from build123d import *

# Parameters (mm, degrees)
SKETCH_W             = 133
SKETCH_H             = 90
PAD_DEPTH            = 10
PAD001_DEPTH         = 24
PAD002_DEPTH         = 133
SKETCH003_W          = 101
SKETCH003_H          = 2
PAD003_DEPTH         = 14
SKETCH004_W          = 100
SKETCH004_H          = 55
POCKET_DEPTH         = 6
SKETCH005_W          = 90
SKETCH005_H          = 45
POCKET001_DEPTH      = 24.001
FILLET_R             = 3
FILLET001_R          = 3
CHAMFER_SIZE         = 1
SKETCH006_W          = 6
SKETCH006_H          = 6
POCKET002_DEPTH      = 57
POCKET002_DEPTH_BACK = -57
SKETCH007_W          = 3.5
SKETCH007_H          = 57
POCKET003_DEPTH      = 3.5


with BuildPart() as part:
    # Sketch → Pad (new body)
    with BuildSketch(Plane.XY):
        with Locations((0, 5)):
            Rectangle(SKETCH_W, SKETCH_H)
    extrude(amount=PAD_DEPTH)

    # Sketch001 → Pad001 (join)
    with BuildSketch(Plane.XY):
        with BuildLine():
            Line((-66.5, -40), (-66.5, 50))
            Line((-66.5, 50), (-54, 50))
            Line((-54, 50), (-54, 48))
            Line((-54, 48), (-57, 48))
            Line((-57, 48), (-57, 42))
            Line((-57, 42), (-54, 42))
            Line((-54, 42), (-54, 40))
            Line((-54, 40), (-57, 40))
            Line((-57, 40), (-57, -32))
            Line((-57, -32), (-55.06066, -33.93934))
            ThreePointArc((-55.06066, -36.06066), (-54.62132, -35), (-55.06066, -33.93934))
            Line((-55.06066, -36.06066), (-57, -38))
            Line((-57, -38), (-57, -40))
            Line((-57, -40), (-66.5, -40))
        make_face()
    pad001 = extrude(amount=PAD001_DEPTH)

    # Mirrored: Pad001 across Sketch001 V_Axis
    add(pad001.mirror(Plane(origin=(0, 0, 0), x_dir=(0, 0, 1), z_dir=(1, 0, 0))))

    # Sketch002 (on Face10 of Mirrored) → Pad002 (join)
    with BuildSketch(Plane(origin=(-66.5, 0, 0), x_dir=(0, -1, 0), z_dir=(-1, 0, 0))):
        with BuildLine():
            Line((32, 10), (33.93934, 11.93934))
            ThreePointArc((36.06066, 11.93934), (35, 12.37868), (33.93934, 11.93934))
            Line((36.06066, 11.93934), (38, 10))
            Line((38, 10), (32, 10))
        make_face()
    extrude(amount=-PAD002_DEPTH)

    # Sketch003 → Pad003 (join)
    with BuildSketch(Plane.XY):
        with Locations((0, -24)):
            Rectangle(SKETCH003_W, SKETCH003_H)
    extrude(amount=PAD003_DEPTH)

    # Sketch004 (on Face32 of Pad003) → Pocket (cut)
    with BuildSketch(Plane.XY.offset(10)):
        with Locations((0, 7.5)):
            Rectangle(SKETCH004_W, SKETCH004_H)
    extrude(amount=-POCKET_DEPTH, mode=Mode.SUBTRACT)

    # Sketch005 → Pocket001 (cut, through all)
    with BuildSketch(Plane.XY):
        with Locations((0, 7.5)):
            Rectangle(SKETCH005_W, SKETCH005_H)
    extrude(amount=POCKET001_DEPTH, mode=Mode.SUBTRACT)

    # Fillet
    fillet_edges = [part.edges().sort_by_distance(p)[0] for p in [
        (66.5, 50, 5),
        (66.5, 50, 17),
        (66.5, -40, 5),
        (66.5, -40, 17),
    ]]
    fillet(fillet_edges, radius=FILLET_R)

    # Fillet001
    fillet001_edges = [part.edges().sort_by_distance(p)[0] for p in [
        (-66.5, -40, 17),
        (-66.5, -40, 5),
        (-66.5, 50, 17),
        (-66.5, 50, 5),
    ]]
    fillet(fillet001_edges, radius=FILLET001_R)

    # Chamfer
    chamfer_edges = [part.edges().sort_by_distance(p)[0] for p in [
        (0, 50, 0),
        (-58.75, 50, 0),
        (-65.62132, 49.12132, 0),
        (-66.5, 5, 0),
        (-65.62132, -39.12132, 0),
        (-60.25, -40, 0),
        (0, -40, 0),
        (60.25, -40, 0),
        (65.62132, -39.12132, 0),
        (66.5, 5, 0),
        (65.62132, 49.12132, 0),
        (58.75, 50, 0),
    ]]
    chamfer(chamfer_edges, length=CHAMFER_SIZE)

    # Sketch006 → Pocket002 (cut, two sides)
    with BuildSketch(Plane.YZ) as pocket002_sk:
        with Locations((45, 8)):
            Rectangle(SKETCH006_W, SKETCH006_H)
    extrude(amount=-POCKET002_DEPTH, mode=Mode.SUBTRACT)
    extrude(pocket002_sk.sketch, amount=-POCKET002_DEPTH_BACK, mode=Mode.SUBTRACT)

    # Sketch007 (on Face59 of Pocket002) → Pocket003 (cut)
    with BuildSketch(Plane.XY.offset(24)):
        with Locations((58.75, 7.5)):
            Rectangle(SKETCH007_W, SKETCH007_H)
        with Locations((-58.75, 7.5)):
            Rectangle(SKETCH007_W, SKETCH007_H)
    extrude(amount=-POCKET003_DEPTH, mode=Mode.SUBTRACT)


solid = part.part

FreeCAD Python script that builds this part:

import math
import FreeCAD as App
import Part
import Sketcher

V = App.Vector
Q = App.Units.Quantity


def edges_at(feature, points):
    """Names of the edges that pass closest to the given points."""
    edges = feature.Shape.Edges
    near = lambda p: min(range(len(edges)), key=lambda i: edges[i].distToShape(Part.Vertex(*p))[0])
    return sorted({f"Edge{near(p) + 1}" for p in points})

doc = App.newDocument("Part")
params = doc.addObject("Spreadsheet::Sheet", "Params")
for row, (alias, value) in enumerate([
    ("sketch1_width", "133 mm"),
    ("sketch1_height", "90 mm"),
    ("pad1_length", "10 mm"),
    ("sketch2_radius", "1.499999 mm"),
    ("sketch2_width", "3 mm"),
    ("sketch2_height", "90 mm"),
    ("sketch2_height2", "2 mm"),
    ("sketch2_height3", "72 mm"),
    ("pad2_length", "24 mm"),
    ("sketch3_radius", "1.499999 mm"),
    ("sketch3_width", "6 mm"),
    ("pad3_length", "133 mm"),
    ("sketch4_width", "101 mm"),
    ("sketch4_height", "2 mm"),
    ("pad4_length", "14 mm"),
    ("sketch5_width", "100 mm"),
    ("sketch5_height", "55 mm"),
    ("pocket1_length", "6 mm"),
    ("sketch6_width", "90 mm"),
    ("sketch6_height", "45 mm"),
    ("fillet_radius", "3 mm"),
    ("fillet2_radius", "3 mm"),
    ("chamfer_size", "1 mm"),
    ("sketch7_width", "6 mm"),
    ("pocket3_length", "57 mm"),
    ("pocket3_length2", "57 mm"),
    ("sketch8_height", "57 mm"),
    ("sketch8_width", "3.5 mm"),
    ("pocket4_length", "3.5 mm"),
], start=1):
    params.set(f"A{row}", alias)
    params.set(f"B{row}", "=" + value)
    params.setAlias(f"B{row}", alias)

body = doc.addObject("PartDesign::Body", "Body")

sketch1 = body.newObject("Sketcher::SketchObject", "Sketch")
sketch1.AttachmentSupport = (doc.getObject("XY_Plane"), [""])
sketch1.MapMode = "FlatFace"
sketch1.addGeometry([
    Part.LineSegment(V(-66, 50, 0), V(-66, -40, 0)),
    Part.LineSegment(V(-66, -40, 0), V(66, -40, 0)),
    Part.LineSegment(V(66, -40, 0), V(66, 50, 0)),
    Part.LineSegment(V(66, 50, 0), V(-66, 50, 0)),
], False)
sketch1.addConstraint([
    Sketcher.Constraint("Coincident", 0, 2, 1, 1),
    Sketcher.Constraint("Coincident", 1, 2, 2, 1),
    Sketcher.Constraint("Coincident", 2, 2, 3, 1),
    Sketcher.Constraint("Coincident", 3, 2, 0, 1),
    Sketcher.Constraint("Vertical", 0),
    Sketcher.Constraint("Horizontal", 1),
    Sketcher.Constraint("Vertical", 2),
    Sketcher.Constraint("Horizontal", 3),
    Sketcher.Constraint("DistanceX", 1, 1, 1, 2, Q("133 mm")),
    Sketcher.Constraint("DistanceY", 0, 2, 0, 1, Q("90 mm")),
    Sketcher.Constraint("DistanceY", 0, 2, -1, 1, Q("40 mm")),
    Sketcher.Constraint("DistanceX", 0, 2, -1, 1, Q("66.5 mm")),
])
sketch1.setExpression("Constraints[8]", "Params.sketch1_width")
sketch1.setExpression("Constraints[9]", "Params.sketch1_height")
pad1 = body.newObject("PartDesign::Pad", "Pad")
pad1.Profile = sketch1
pad1.setExpression("Length", "Params.pad1_length")

sketch2 = body.newObject("Sketcher::SketchObject", "Sketch001")
sketch2.AttachmentSupport = (doc.getObject("XY_Plane"), [""])
sketch2.MapMode = "FlatFace"
sketch2.addGeometry([
    Part.LineSegment(V(-66.5, 50, 0), V(-66.5, -40, 0)),
    Part.LineSegment(V(-66.5, -40, 0), V(-57, -40, 0)),
    Part.LineSegment(V(-57, -40, 0), V(-57, -38, 0)),
    Part.LineSegment(V(-57, -38, 0), V(-55.1, -36.1, 0)),
    Part.ArcOfCircle(Part.Circle(V(-56.1, -35, 0), V(0, 0, 1), 1.5), math.radians(-45), math.radians(45)),
    Part.LineSegment(V(-55.1, -33.9, 0), V(-57, -32, 0)),
    Part.LineSegment(V(-57, -32, 0), V(-57, 40, 0)),
    Part.LineSegment(V(-57, 40, 0), V(-54, 40, 0)),
    Part.LineSegment(V(-54, 40, 0), V(-54, 42, 0)),
    Part.LineSegment(V(-54, 42, 0), V(-57, 42, 0)),
    Part.LineSegment(V(-57, 42, 0), V(-57, 48, 0)),
    Part.LineSegment(V(-57, 48, 0), V(-54, 48, 0)),
    Part.LineSegment(V(-54, 48, 0), V(-54, 50, 0)),
    Part.LineSegment(V(-54, 50, 0), V(-66.5, 50, 0)),
], False)
sketch2.addConstraint([
    Sketcher.Constraint("Coincident", 0, 2, 1, 1),
    Sketcher.Constraint("Coincident", 1, 2, 2, 1),
    Sketcher.Constraint("Coincident", 2, 2, 3, 1),
    Sketcher.Constraint("Tangent", 3, 2, 4, 1),
    Sketcher.Constraint("Tangent", 4, 2, 5, 1),
    Sketcher.Constraint("Coincident", 5, 2, 6, 1),
    Sketcher.Constraint("Coincident", 6, 2, 7, 1),
    Sketcher.Constraint("Coincident", 7, 2, 8, 1),
    Sketcher.Constraint("Coincident", 8, 2, 9, 1),
    Sketcher.Constraint("Coincident", 9, 2, 10, 1),
    Sketcher.Constraint("Coincident", 10, 2, 11, 1),
    Sketcher.Constraint("Coincident", 11, 2, 12, 1),
    Sketcher.Constraint("Coincident", 12, 2, 13, 1),
    Sketcher.Constraint("Coincident", 13, 2, 0, 1),
    Sketcher.Constraint("Vertical", 0),
    Sketcher.Constraint("Horizontal", 1),
    Sketcher.Constraint("Vertical", 2),
    Sketcher.Constraint("Vertical", 6),
    Sketcher.Constraint("Horizontal", 7),
    Sketcher.Constraint("Vertical", 8),
    Sketcher.Constraint("Horizontal", 9),
    Sketcher.Constraint("Vertical", 10),
    Sketcher.Constraint("Horizontal", 11),
    Sketcher.Constraint("Vertical", 12),
    Sketcher.Constraint("Horizontal", 13),
    Sketcher.Constraint("Symmetric", 1, 2, 6, 2, -1),
    Sketcher.Constraint("Perpendicular", 3, 5),
    Sketcher.Constraint("Vertical", 3, 2, 4, 2),
    Sketcher.Constraint("Vertical", 6, 2, 9, 2),
    Sketcher.Constraint("Vertical", 8, 2, 11, 2),
    Sketcher.Constraint("Equal", 2, 8),
    Sketcher.Constraint("Equal", 8, 12),
    Sketcher.Constraint("Radius", 4, Q("1.499999 mm")),
    Sketcher.Constraint("DistanceX", 7, 1, 7, 2, Q("3 mm")),
    Sketcher.Constraint("DistanceY", 0, 2, 0, 1, Q("90 mm")),
    Sketcher.Constraint("DistanceY", 2, 1, 2, 2, Q("2 mm")),
    Sketcher.Constraint("DistanceY", 6, 1, 6, 2, Q("72 mm")),
    Sketcher.Constraint("DistanceY", 10, 1, 10, 2, Q("6 mm")),
    Sketcher.Constraint("DistanceX", 1, 1, 1, 2, Q("9.5 mm")),
    Sketcher.Constraint("DistanceX", 1, 2, -1, 1, Q("57 mm")),
])
sketch2.setExpression("Constraints[32]", "Params.sketch2_radius")
sketch2.setExpression("Constraints[33]", "Params.sketch2_width")
sketch2.setExpression("Constraints[34]", "Params.sketch2_height")
sketch2.setExpression("Constraints[35]", "Params.sketch2_height2")
sketch2.setExpression("Constraints[36]", "Params.sketch2_height3")
pad2 = body.newObject("PartDesign::Pad", "Pad001")
pad2.Profile = sketch2
pad2.setExpression("Length", "Params.pad2_length")
doc.recompute()

mirrored = body.newObject("PartDesign::Mirrored", "Mirrored")
mirrored.Originals = [pad2]
mirrored.MirrorPlane = (doc.getObject("YZ_Plane"), [""])
body.Tip = mirrored

sketch3 = body.newObject("Sketcher::SketchObject", "Sketch002")
sketch3.AttachmentSupport = (doc.getObject("YZ_Plane"), [""])
sketch3.MapMode = "FlatFace"
sketch3.AttachmentOffset = App.Placement(V(0, 0, -66.5), App.Rotation())
sketch3.addGeometry([
    Part.LineSegment(V(-33.9, 11.9, 0), V(-32, 10, 0)),
    Part.LineSegment(V(-32, 10, 0), V(-38, 10, 0)),
    Part.LineSegment(V(-38, 10, 0), V(-36.1, 11.9, 0)),
    Part.ArcOfCircle(Part.Circle(V(-35, 10.9, 0), V(0, 0, 1), 1.5), math.radians(45), math.radians(135)),
], False)
sketch3.addConstraint([
    Sketcher.Constraint("Coincident", 0, 2, 1, 1),
    Sketcher.Constraint("Coincident", 1, 2, 2, 1),
    Sketcher.Constraint("Tangent", 2, 2, 3, 2),
    Sketcher.Constraint("Tangent", 3, 1, 0, 1),
    Sketcher.Constraint("Horizontal", 1),
    Sketcher.Constraint("Perpendicular", 0, 2),
    Sketcher.Constraint("Horizontal", 2, 2, 3, 1),
    Sketcher.Constraint("Radius", 3, Q("1.499999 mm")),
    Sketcher.Constraint("DistanceX", 1, 2, 1, 1, Q("6 mm")),
    Sketcher.Constraint("DistanceX", 3, 3, -1, 1, Q("35 mm")),
    Sketcher.Constraint("DistanceY", -1, 1, 0, 2, Q("10 mm")),
])
sketch3.setExpression("Constraints[7]", "Params.sketch3_radius")
sketch3.setExpression("Constraints[8]", "Params.sketch3_width")
pad3 = body.newObject("PartDesign::Pad", "Pad002")
pad3.Profile = sketch3
pad3.setExpression("Length", "Params.pad3_length")

sketch4 = body.newObject("Sketcher::SketchObject", "Sketch003")
sketch4.AttachmentSupport = (doc.getObject("XY_Plane"), [""])
sketch4.MapMode = "FlatFace"
sketch4.addGeometry([
    Part.LineSegment(V(-50.5, -23, 0), V(-50.5, -25, 0)),
    Part.LineSegment(V(-50.5, -25, 0), V(50.5, -25, 0)),
    Part.LineSegment(V(50.5, -25, 0), V(50.5, -23, 0)),
    Part.LineSegment(V(50.5, -23, 0), V(-50.5, -23, 0)),
], False)
sketch4.addConstraint([
    Sketcher.Constraint("Coincident", 0, 2, 1, 1),
    Sketcher.Constraint("Coincident", 1, 2, 2, 1),
    Sketcher.Constraint("Coincident", 2, 2, 3, 1),
    Sketcher.Constraint("Coincident", 3, 2, 0, 1),
    Sketcher.Constraint("Vertical", 0),
    Sketcher.Constraint("Horizontal", 1),
    Sketcher.Constraint("Vertical", 2),
    Sketcher.Constraint("Horizontal", 3),
    Sketcher.Constraint("DistanceX", 1, 1, 1, 2, Q("101 mm")),
    Sketcher.Constraint("DistanceY", 0, 2, 0, 1, Q("2 mm")),
    Sketcher.Constraint("DistanceY", 0, 2, -1, 1, Q("25 mm")),
    Sketcher.Constraint("DistanceX", 0, 2, -1, 1, Q("50.5 mm")),
])
sketch4.setExpression("Constraints[8]", "Params.sketch4_width")
sketch4.setExpression("Constraints[9]", "Params.sketch4_height")
pad4 = body.newObject("PartDesign::Pad", "Pad003")
pad4.Profile = sketch4
pad4.setExpression("Length", "Params.pad4_length")

sketch5 = body.newObject("Sketcher::SketchObject", "Sketch004")
sketch5.AttachmentSupport = (doc.getObject("XY_Plane"), [""])
sketch5.MapMode = "FlatFace"
sketch5.AttachmentOffset = App.Placement(V(0, 0, 10), App.Rotation())
sketch5.addGeometry([
    Part.LineSegment(V(-50, 35, 0), V(-50, -20, 0)),
    Part.LineSegment(V(-50, -20, 0), V(50, -20, 0)),
    Part.LineSegment(V(50, -20, 0), V(50, 35, 0)),
    Part.LineSegment(V(50, 35, 0), V(-50, 35, 0)),
], False)
sketch5.addConstraint([
    Sketcher.Constraint("Coincident", 0, 2, 1, 1),
    Sketcher.Constraint("Coincident", 1, 2, 2, 1),
    Sketcher.Constraint("Coincident", 2, 2, 3, 1),
    Sketcher.Constraint("Coincident", 3, 2, 0, 1),
    Sketcher.Constraint("Vertical", 0),
    Sketcher.Constraint("Horizontal", 1),
    Sketcher.Constraint("Vertical", 2),
    Sketcher.Constraint("Horizontal", 3),
    Sketcher.Constraint("DistanceX", 1, 1, 1, 2, Q("100 mm")),
    Sketcher.Constraint("DistanceY", 0, 2, 0, 1, Q("55 mm")),
    Sketcher.Constraint("DistanceX", 0, 2, -1, 1, Q("50 mm")),
    Sketcher.Constraint("DistanceY", 0, 2, -1, 1, Q("20 mm")),
])
sketch5.setExpression("Constraints[8]", "Params.sketch5_width")
sketch5.setExpression("Constraints[9]", "Params.sketch5_height")
pocket1 = body.newObject("PartDesign::Pocket", "Pocket")
pocket1.Profile = sketch5
pocket1.setExpression("Length", "Params.pocket1_length")

sketch6 = body.newObject("Sketcher::SketchObject", "Sketch005")
sketch6.AttachmentSupport = (doc.getObject("XY_Plane"), [""])
sketch6.MapMode = "FlatFace"
sketch6.addGeometry([
    Part.LineSegment(V(-45, 30, 0), V(-45, -15, 0)),
    Part.LineSegment(V(-45, -15, 0), V(45, -15, 0)),
    Part.LineSegment(V(45, -15, 0), V(45, 30, 0)),
    Part.LineSegment(V(45, 30, 0), V(-45, 30, 0)),
], False)
sketch6.addConstraint([
    Sketcher.Constraint("Coincident", 0, 2, 1, 1),
    Sketcher.Constraint("Coincident", 1, 2, 2, 1),
    Sketcher.Constraint("Coincident", 2, 2, 3, 1),
    Sketcher.Constraint("Coincident", 3, 2, 0, 1),
    Sketcher.Constraint("Vertical", 0),
    Sketcher.Constraint("Horizontal", 1),
    Sketcher.Constraint("Vertical", 2),
    Sketcher.Constraint("Horizontal", 3),
    Sketcher.Constraint("DistanceX", 1, 1, 1, 2, Q("90 mm")),
    Sketcher.Constraint("DistanceY", 0, 2, 0, 1, Q("45 mm")),
    Sketcher.Constraint("DistanceX", 0, 2, -1, 1, Q("45 mm")),
    Sketcher.Constraint("DistanceY", 0, 2, -1, 1, Q("15 mm")),
])
sketch6.setExpression("Constraints[8]", "Params.sketch6_width")
sketch6.setExpression("Constraints[9]", "Params.sketch6_height")
pocket2 = body.newObject("PartDesign::Pocket", "Pocket001")
pocket2.Profile = sketch6
pocket2.Type = "ThroughAll"
pocket2.Reversed = True
doc.recompute()

fillet = body.newObject("PartDesign::Fillet", "Fillet")
fillet.Base = (pocket2, edges_at(pocket2, [
    (66.5, 50, 12),
    (66.5, 50, 12),
    (66.5, -40, 12),
    (66.5, -40, 12),
]))
fillet.setExpression("Radius", "Params.fillet_radius")
doc.recompute()

fillet2 = body.newObject("PartDesign::Fillet", "Fillet001")
fillet2.Base = (fillet, edges_at(fillet, [
    (-66.5, -40, 12),
    (-66.5, -40, 12),
    (-66.5, 50, 12),
    (-66.5, 50, 12),
]))
fillet2.setExpression("Radius", "Params.fillet2_radius")
doc.recompute()

chamfer = body.newObject("PartDesign::Chamfer", "Chamfer")
chamfer.Base = (fillet2, edges_at(fillet2, [
    (0, 50, 0),
    (0, 50, 0),
    (-65.621, 49.121, 0),
    (-66.5, 5, 0),
    (-65.621, -39.121, 0),
    (0, -40, 0),
    (0, -40, 0),
    (0, -40, 0),
    (65.621, -39.121, 0),
    (66.5, 5, 0),
    (65.621, 49.121, 0),
    (0, 50, 0),
]))
chamfer.setExpression("Size", "Params.chamfer_size")

sketch7 = body.newObject("Sketcher::SketchObject", "Sketch006")
sketch7.AttachmentSupport = (doc.getObject("YZ_Plane"), [""])
sketch7.MapMode = "FlatFace"
sketch7.addGeometry([
    Part.LineSegment(V(42, 11, 0), V(42, 5, 0)),
    Part.LineSegment(V(42, 5, 0), V(48, 5, 0)),
    Part.LineSegment(V(48, 5, 0), V(48, 11, 0)),
    Part.LineSegment(V(48, 11, 0), V(42, 11, 0)),
], False)
sketch7.addConstraint([
    Sketcher.Constraint("Coincident", 0, 2, 1, 1),
    Sketcher.Constraint("Coincident", 1, 2, 2, 1),
    Sketcher.Constraint("Coincident", 2, 2, 3, 1),
    Sketcher.Constraint("Coincident", 3, 2, 0, 1),
    Sketcher.Constraint("Vertical", 0),
    Sketcher.Constraint("Horizontal", 1),
    Sketcher.Constraint("Vertical", 2),
    Sketcher.Constraint("Horizontal", 3),
    Sketcher.Constraint("Equal", 3, 0),
    Sketcher.Constraint("DistanceX", 1, 1, 1, 2, Q("6 mm")),
    Sketcher.Constraint("DistanceX", -1, 1, 0, 2, Q("42 mm")),
    Sketcher.Constraint("DistanceY", -1, 1, 0, 2, Q("5 mm")),
])
sketch7.setExpression("Constraints[9]", "Params.sketch7_width")
pocket3 = body.newObject("PartDesign::Pocket", "Pocket002")
pocket3.Profile = sketch7
pocket3.Type = "TwoLengths"
pocket3.setExpression("Length", "Params.pocket3_length")
pocket3.setExpression("Length2", "Params.pocket3_length2")

sketch8 = body.newObject("Sketcher::SketchObject", "Sketch007")
sketch8.AttachmentSupport = (doc.getObject("XY_Plane"), [""])
sketch8.MapMode = "FlatFace"
sketch8.AttachmentOffset = App.Placement(V(0, 0, 24), App.Rotation())
sketch8.addGeometry([
    Part.LineSegment(V(57, 36, 0), V(57, -21, 0)),
    Part.LineSegment(V(57, -21, 0), V(60.5, -21, 0)),
    Part.LineSegment(V(60.5, -21, 0), V(60.5, 36, 0)),
    Part.LineSegment(V(60.5, 36, 0), V(57, 36, 0)),
    Part.LineSegment(V(-60.5, 36, 0), V(-60.5, -21, 0)),
    Part.LineSegment(V(-60.5, -21, 0), V(-57, -21, 0)),
    Part.LineSegment(V(-57, -21, 0), V(-57, 36, 0)),
    Part.LineSegment(V(-57, 36, 0), V(-60.5, 36, 0)),
], False)
sketch8.addConstraint([
    Sketcher.Constraint("Coincident", 0, 2, 1, 1),
    Sketcher.Constraint("Coincident", 1, 2, 2, 1),
    Sketcher.Constraint("Coincident", 2, 2, 3, 1),
    Sketcher.Constraint("Coincident", 3, 2, 0, 1),
    Sketcher.Constraint("Coincident", 4, 2, 5, 1),
    Sketcher.Constraint("Coincident", 5, 2, 6, 1),
    Sketcher.Constraint("Coincident", 6, 2, 7, 1),
    Sketcher.Constraint("Coincident", 7, 2, 4, 1),
    Sketcher.Constraint("Vertical", 0),
    Sketcher.Constraint("Horizontal", 1),
    Sketcher.Constraint("Vertical", 2),
    Sketcher.Constraint("Horizontal", 3),
    Sketcher.Constraint("Vertical", 4),
    Sketcher.Constraint("Horizontal", 5),
    Sketcher.Constraint("Vertical", 6),
    Sketcher.Constraint("Horizontal", 7),
    Sketcher.Constraint("Symmetric", 1, 2, 4, 2, -2),
    Sketcher.Constraint("Symmetric", 3, 2, 6, 2, -2),
    Sketcher.Constraint("DistanceY", 0, 2, 0, 1, Q("57 mm")),
    Sketcher.Constraint("DistanceX", 1, 1, 1, 2, Q("3.5 mm")),
    Sketcher.Constraint("DistanceX", -1, 1, 0, 2, Q("57 mm")),
    Sketcher.Constraint("DistanceY", 0, 2, -1, 1, Q("21 mm")),
])
sketch8.setExpression("Constraints[18]", "Params.sketch8_height")
sketch8.setExpression("Constraints[19]", "Params.sketch8_width")
pocket4 = body.newObject("PartDesign::Pocket", "Pocket003")
pocket4.Profile = sketch8
pocket4.setExpression("Length", "Params.pocket4_length")

doc.recompute()
